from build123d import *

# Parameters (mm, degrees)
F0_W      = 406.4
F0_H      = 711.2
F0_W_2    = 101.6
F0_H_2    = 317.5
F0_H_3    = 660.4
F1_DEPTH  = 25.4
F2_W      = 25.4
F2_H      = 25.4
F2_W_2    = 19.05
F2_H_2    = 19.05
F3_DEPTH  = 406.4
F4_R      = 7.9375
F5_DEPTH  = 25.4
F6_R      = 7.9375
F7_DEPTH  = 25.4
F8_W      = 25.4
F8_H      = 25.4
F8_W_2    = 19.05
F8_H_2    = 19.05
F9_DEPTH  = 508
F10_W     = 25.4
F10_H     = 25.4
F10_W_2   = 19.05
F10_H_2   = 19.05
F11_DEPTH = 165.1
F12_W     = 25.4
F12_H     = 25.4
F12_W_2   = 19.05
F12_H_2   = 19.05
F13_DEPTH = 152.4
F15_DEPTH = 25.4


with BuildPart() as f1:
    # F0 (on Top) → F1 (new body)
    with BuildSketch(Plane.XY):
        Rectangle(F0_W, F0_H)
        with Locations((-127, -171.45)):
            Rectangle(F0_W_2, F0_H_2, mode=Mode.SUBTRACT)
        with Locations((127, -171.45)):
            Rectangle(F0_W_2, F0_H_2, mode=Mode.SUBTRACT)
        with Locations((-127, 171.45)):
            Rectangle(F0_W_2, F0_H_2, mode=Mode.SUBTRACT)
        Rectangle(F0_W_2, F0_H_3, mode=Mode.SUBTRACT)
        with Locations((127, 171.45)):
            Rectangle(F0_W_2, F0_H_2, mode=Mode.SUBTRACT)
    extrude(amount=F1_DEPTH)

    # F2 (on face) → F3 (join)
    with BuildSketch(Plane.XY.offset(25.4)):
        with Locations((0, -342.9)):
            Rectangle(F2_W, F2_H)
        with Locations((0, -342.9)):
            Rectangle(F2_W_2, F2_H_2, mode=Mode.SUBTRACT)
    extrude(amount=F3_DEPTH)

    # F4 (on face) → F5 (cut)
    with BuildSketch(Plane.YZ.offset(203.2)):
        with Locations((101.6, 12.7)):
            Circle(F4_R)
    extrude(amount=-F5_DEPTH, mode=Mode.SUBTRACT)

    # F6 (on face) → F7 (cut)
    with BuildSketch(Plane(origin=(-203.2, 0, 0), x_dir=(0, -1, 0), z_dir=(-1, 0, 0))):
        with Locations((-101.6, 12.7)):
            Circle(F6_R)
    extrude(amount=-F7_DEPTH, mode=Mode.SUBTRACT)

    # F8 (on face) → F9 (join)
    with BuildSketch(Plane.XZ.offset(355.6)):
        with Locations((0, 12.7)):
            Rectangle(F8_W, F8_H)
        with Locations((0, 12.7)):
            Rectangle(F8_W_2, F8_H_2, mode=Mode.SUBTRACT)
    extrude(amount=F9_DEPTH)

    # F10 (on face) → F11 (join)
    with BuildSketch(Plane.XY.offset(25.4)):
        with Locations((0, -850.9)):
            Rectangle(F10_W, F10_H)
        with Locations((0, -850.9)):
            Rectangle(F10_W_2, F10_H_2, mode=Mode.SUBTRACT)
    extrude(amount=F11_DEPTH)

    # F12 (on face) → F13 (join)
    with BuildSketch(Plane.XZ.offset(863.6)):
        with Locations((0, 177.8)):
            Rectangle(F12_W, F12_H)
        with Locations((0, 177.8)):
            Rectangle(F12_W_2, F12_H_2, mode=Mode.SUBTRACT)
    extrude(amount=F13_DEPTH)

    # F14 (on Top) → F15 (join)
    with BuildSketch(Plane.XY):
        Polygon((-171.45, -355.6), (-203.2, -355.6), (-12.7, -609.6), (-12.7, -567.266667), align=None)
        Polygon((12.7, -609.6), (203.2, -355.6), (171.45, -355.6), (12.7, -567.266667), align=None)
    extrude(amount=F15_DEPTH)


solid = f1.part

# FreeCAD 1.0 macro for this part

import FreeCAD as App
import Part
import Sketcher
from FreeCAD import Vector
Q = App.Units.Quantity

doc = App.newDocument("Part")
body = doc.addObject("PartDesign::Body", "Body")

# Sketch on XY plane
sketch1 = doc.addObject("Sketcher::SketchObject", "Sketch")
body.addObject(sketch1)
sketch1.AttachmentSupport = (doc.XY_Plane, [""])
sketch1.MapMode = "FlatFace"
sketch1.addGeometry([
    Part.LineSegment(Vector(-203, 356, 0), Vector(-203, -356, 0)),  # 0
    Part.LineSegment(Vector(-203, -356, 0), Vector(203, -356, 0)),  # 1
    Part.LineSegment(Vector(203, -356, 0), Vector(203, 356, 0)),  # 2
    Part.LineSegment(Vector(203, 356, 0), Vector(-203, 356, 0)),  # 3
    Part.LineSegment(Vector(-76, -330, 0), Vector(-178, -330, 0)),  # 4
    Part.LineSegment(Vector(-178, -330, 0), Vector(-178, -13, 0)),  # 5
    Part.LineSegment(Vector(-178, -13, 0), Vector(-76, -13, 0)),  # 6
    Part.LineSegment(Vector(-76, -13, 0), Vector(-76, -330, 0)),  # 7
    Part.LineSegment(Vector(178, -330, 0), Vector(76, -330, 0)),  # 8
    Part.LineSegment(Vector(76, -330, 0), Vector(76, -13, 0)),  # 9
    Part.LineSegment(Vector(76, -13, 0), Vector(178, -13, 0)),  # 10
    Part.LineSegment(Vector(178, -13, 0), Vector(178, -330, 0)),  # 11
    Part.LineSegment(Vector(-76, 13, 0), Vector(-178, 13, 0)),  # 12
    Part.LineSegment(Vector(-178, 13, 0), Vector(-178, 330, 0)),  # 13
    Part.LineSegment(Vector(-178, 330, 0), Vector(-76, 330, 0)),  # 14
    Part.LineSegment(Vector(-76, 330, 0), Vector(-76, 13, 0)),  # 15
    Part.LineSegment(Vector(51, -330, 0), Vector(-51, -330, 0)),  # 16
    Part.LineSegment(Vector(-51, -330, 0), Vector(-51, 330, 0)),  # 17
    Part.LineSegment(Vector(-51, 330, 0), Vector(51, 330, 0)),  # 18
    Part.LineSegment(Vector(51, 330, 0), Vector(51, -330, 0)),  # 19
    Part.LineSegment(Vector(178, 13, 0), Vector(76, 13, 0)),  # 20
    Part.LineSegment(Vector(76, 13, 0), Vector(76, 330, 0)),  # 21
    Part.LineSegment(Vector(76, 330, 0), Vector(178, 330, 0)),  # 22
    Part.LineSegment(Vector(178, 330, 0), Vector(178, 13, 0)),  # 23
], False)
sketch1.addConstraint([
    Sketcher.Constraint("Coincident", 0, 2, 1, 1),
    Sketcher.Constraint("Coincident", 1, 2, 2, 1),
    Sketcher.Constraint("Coincident", 2, 2, 3, 1),
    Sketcher.Constraint("Coincident", 3, 2, 0, 1),
    Sketcher.Constraint("Coincident", 4, 2, 5, 1),
    Sketcher.Constraint("Coincident", 5, 2, 6, 1),
    Sketcher.Constraint("Coincident", 6, 2, 7, 1),
    Sketcher.Constraint("Coincident", 7, 2, 4, 1),
    Sketcher.Constraint("Coincident", 8, 2, 9, 1),
    Sketcher.Constraint("Coincident", 9, 2, 10, 1),
    Sketcher.Constraint("Coincident", 10, 2, 11, 1),
    Sketcher.Constraint("Coincident", 11, 2, 8, 1),
    Sketcher.Constraint("Coincident", 12, 2, 13, 1),
    Sketcher.Constraint("Coincident", 13, 2, 14, 1),
    Sketcher.Constraint("Coincident", 14, 2, 15, 1),
    Sketcher.Constraint("Coincident", 15, 2, 12, 1),
    Sketcher.Constraint("Coincident", 16, 2, 17, 1),
    Sketcher.Constraint("Coincident", 17, 2, 18, 1),
    Sketcher.Constraint("Coincident", 18, 2, 19, 1),
    Sketcher.Constraint("Coincident", 19, 2, 16, 1),
    Sketcher.Constraint("Coincident", 20, 2, 21, 1),
    Sketcher.Constraint("Coincident", 21, 2, 22, 1),
    Sketcher.Constraint("Coincident", 22, 2, 23, 1),
    Sketcher.Constraint("Coincident", 23, 2, 20, 1),
    Sketcher.Constraint("Vertical", 0),
    Sketcher.Constraint("Horizontal", 1),
    Sketcher.Constraint("Vertical", 2),
    Sketcher.Constraint("Horizontal", 3),
    Sketcher.Constraint("Horizontal", 4),
    Sketcher.Constraint("Vertical", 5),
    Sketcher.Constraint("Horizontal", 6),
    Sketcher.Constraint("Vertical", 7),
    Sketcher.Constraint("Horizontal", 8),
    Sketcher.Constraint("Vertical", 9),
    Sketcher.Constraint("Horizontal", 10),
    Sketcher.Constraint("Vertical", 11),
    Sketcher.Constraint("Horizontal", 12),
    Sketcher.Constraint("Vertical", 13),
    Sketcher.Constraint("Horizontal", 14),
    Sketcher.Constraint("Vertical", 15),
    Sketcher.Constraint("Horizontal", 16),
    Sketcher.Constraint("Vertical", 17),
    Sketcher.Constraint("Horizontal", 18),
    Sketcher.Constraint("Vertical", 19),
    Sketcher.Constraint("Horizontal", 20),
    Sketcher.Constraint("Vertical", 21),
    Sketcher.Constraint("Horizontal", 22),
    Sketcher.Constraint("Vertical", 23),
    Sketcher.Constraint("Symmetric", 0, 2, 2, 2, -1, 1),
    Sketcher.Constraint("Symmetric", 10, 2, 12, 2, -1, 1),
    Sketcher.Constraint("Symmetric", 8, 2, 14, 2, -1, 1),
    Sketcher.Constraint("Symmetric", 16, 2, 18, 2, -1, 1),
    Sketcher.Constraint("Symmetric", 6, 2, 20, 2, -1, 1),
    Sketcher.Constraint("Symmetric", 4, 2, 22, 2, -1, 1),
    Sketcher.Constraint("Symmetric", 7, 2, 8, 2, -2),
    Sketcher.Constraint("Symmetric", 5, 2, 10, 2, -2),
    Sketcher.Constraint("Horizontal", 11, 2, 16, 2),
    Sketcher.Constraint("Equal", 14, 16),
    Sketcher.Constraint("DistanceX", 1, 1, 1, 2, Q("16 in")),
    Sketcher.Constraint("DistanceX", 4, 2, 4, 1, Q("4 in")),
    Sketcher.Constraint("DistanceY", 0, 2, 0, 1, Q("28 in")),
    Sketcher.Constraint("DistanceY", 17, 1, 17, 2, Q("26 in")),
    Sketcher.Constraint("DistanceY", 5, 1, 5, 2, Q("12.5 in")),
    Sketcher.Constraint("DistanceX", 4, 2, -1, 1, Q("7 in")),
])
pad1 = doc.addObject("PartDesign::Pad", "Pad")
body.addObject(pad1)
pad1.Profile = sketch1
pad1.Length = Q("1 in")

# Sketch on XY plane
sketch2 = doc.addObject("Sketcher::SketchObject", "Sketch001")
body.addObject(sketch2)
sketch2.AttachmentSupport = (doc.XY_Plane, [""])
sketch2.MapMode = "FlatFace"
sketch2.AttachmentOffset = App.Placement(Vector(0, 0, 1 * 25.4), App.Rotation())
sketch2.addGeometry([
    Part.LineSegment(Vector(-13, -330, 0), Vector(-13, -356, 0)),  # 0
    Part.LineSegment(Vector(-13, -356, 0), Vector(13, -356, 0)),  # 1
    Part.LineSegment(Vector(13, -356, 0), Vector(13, -330, 0)),  # 2
    Part.LineSegment(Vector(13, -330, 0), Vector(-13, -330, 0)),  # 3
    Part.LineSegment(Vector(10, -352, 0), Vector(-10, -352, 0)),  # 4
    Part.LineSegment(Vector(-10, -352, 0), Vector(-10, -333, 0)),  # 5
    Part.LineSegment(Vector(-10, -333, 0), Vector(10, -333, 0)),  # 6
    Part.LineSegment(Vector(10, -333, 0), Vector(10, -352, 0)),  # 7
], False)
sketch2.addConstraint([
    Sketcher.Constraint("Coincident", 0, 2, 1, 1),
    Sketcher.Constraint("Coincident", 1, 2, 2, 1),
    Sketcher.Constraint("Coincident", 2, 2, 3, 1),
    Sketcher.Constraint("Coincident", 3, 2, 0, 1),
    Sketcher.Constraint("Coincident", 4, 2, 5, 1),
    Sketcher.Constraint("Coincident", 5, 2, 6, 1),
    Sketcher.Constraint("Coincident", 6, 2, 7, 1),
    Sketcher.Constraint("Coincident", 7, 2, 4, 1),
    Sketcher.Constraint("Vertical", 0),
    Sketcher.Constraint("Horizontal", 1),
    Sketcher.Constraint("Vertical", 2),
    Sketcher.Constraint("Horizontal", 3),
    Sketcher.Constraint("Horizontal", 4),
    Sketcher.Constraint("Vertical", 5),
    Sketcher.Constraint("Horizontal", 6),
    Sketcher.Constraint("Vertical", 7),
    Sketcher.Constraint("Equal", 3, 0),
    Sketcher.Constraint("Equal", 6, 5),
    Sketcher.Constraint("DistanceX", 1, 1, 1, 2, Q("1 in")),
    Sketcher.Constraint("DistanceY", 0, 2, -1, 1, Q("14 in")),
    Sketcher.Constraint("DistanceX", 4, 2, 4, 1, Q("0.75 in")),
    Sketcher.Constraint("DistanceX", 0, 2, -1, 1, Q("0.5 in")),
    Sketcher.Constraint("DistanceX", 4, 2, -1, 1, Q("0.375 in")),
    Sketcher.Constraint("DistanceY", 4, 2, -1, 1, Q("13.875 in")),
])
pad2 = doc.addObject("PartDesign::Pad", "Pad001")
body.addObject(pad2)
pad2.Profile = sketch2
pad2.Length = Q("16 in")

# Sketch on YZ plane
sketch3 = doc.addObject("Sketcher::SketchObject", "Sketch002")
body.addObject(sketch3)
sketch3.AttachmentSupport = (doc.YZ_Plane, [""])
sketch3.MapMode = "FlatFace"
sketch3.AttachmentOffset = App.Placement(Vector(0, 0, 8 * 25.4), App.Rotation())
sketch3.addGeometry(Part.Circle(Vector(102, 13, 0), Vector(0, 0, 1), 8), False)
sketch3.addConstraint([
    Sketcher.Constraint("Diameter", 0, Q("0.625 in")),
    Sketcher.Constraint("DistanceX", -1, 1, 0, 3, Q("4 in")),
    Sketcher.Constraint("DistanceY", -1, 1, 0, 3, Q("0.5 in")),
])
pocket1 = doc.addObject("PartDesign::Pocket", "Pocket")
body.addObject(pocket1)
pocket1.Profile = sketch3
pocket1.Length = Q("1 in")

# Sketch on YZ plane
sketch4 = doc.addObject("Sketcher::SketchObject", "Sketch003")
body.addObject(sketch4)
sketch4.AttachmentSupport = (doc.YZ_Plane, [""])
sketch4.MapMode = "FlatFace"
sketch4.AttachmentOffset = App.Placement(Vector(0, 0, -8 * 25.4), App.Rotation())
sketch4.addGeometry(Part.Circle(Vector(102, 13, 0), Vector(0, 0, 1), 8), False)
sketch4.addConstraint([
    Sketcher.Constraint("Diameter", 0, Q("0.625 in")),
    Sketcher.Constraint("DistanceX", -1, 1, 0, 3, Q("4 in")),
    Sketcher.Constraint("DistanceY", -1, 1, 0, 3, Q("0.5 in")),
])
pocket2 = doc.addObject("PartDesign::Pocket", "Pocket001")
body.addObject(pocket2)
pocket2.Profile = sketch4
pocket2.Length = Q("1 in")
pocket2.Reversed = True

# Sketch on XZ plane
sketch5 = doc.addObject("Sketcher::SketchObject", "Sketch004")
body.addObject(sketch5)
sketch5.AttachmentSupport = (doc.XZ_Plane, [""])
sketch5.MapMode = "FlatFace"
sketch5.AttachmentOffset = App.Placement(Vector(0, 0, 14 * 25.4), App.Rotation())
sketch5.addGeometry([
    Part.LineSegment(Vector(-13, 25, 0), Vector(-13, 0, 0)),  # 0
    Part.LineSegment(Vector(-13, 0, 0), Vector(13, 0, 0)),  # 1
    Part.LineSegment(Vector(13, 0, 0), Vector(13, 25, 0)),  # 2
    Part.LineSegment(Vector(13, 25, 0), Vector(-13, 25, 0)),  # 3
    Part.LineSegment(Vector(10, 3, 0), Vector(-10, 3, 0)),  # 4
    Part.LineSegment(Vector(-10, 3, 0), Vector(-10, 22, 0)),  # 5
    Part.LineSegment(Vector(-10, 22, 0), Vector(10, 22, 0)),  # 6
    Part.LineSegment(Vector(10, 22, 0), Vector(10, 3, 0)),  # 7
], False)
sketch5.addConstraint([
    Sketcher.Constraint("Coincident", 0, 2, 1, 1),
    Sketcher.Constraint("Coincident", 1, 2, 2, 1),
    Sketcher.Constraint("Coincident", 2, 2, 3, 1),
    Sketcher.Constraint("Coincident", 3, 2, 0, 1),
    Sketcher.Constraint("Coincident", 4, 2, 5, 1),
    Sketcher.Constraint("Coincident", 5, 2, 6, 1),
    Sketcher.Constraint("Coincident", 6, 2, 7, 1),
    Sketcher.Constraint("Coincident", 7, 2, 4, 1),
    Sketcher.Constraint("Vertical", 0),
    Sketcher.Constraint("Horizontal", 1),
    Sketcher.Constraint("Vertical", 2),
    Sketcher.Constraint("Horizontal", 3),
    Sketcher.Constraint("Horizontal", 4),
    Sketcher.Constraint("Vertical", 5),
    Sketcher.Constraint("Horizontal", 6),
    Sketcher.Constraint("Vertical", 7),
    Sketcher.Constraint("Symmetric", 0, 2, 1, 2, -1, 1),
    Sketcher.Constraint("Equal", 3, 0),
    Sketcher.Constraint("Equal", 6, 5),
    Sketcher.Constraint("DistanceX", 1, 1, 1, 2, Q("1 in")),
    Sketcher.Constraint("DistanceX", 4, 2, 4, 1, Q("0.75 in")),
    Sketcher.Constraint("DistanceX", 4, 2, -1, 1, Q("0.375 in")),
    Sketcher.Constraint("DistanceY", -1, 1, 4, 2, Q("0.125 in")),
])
pad3 = doc.addObject("PartDesign::Pad", "Pad002")
body.addObject(pad3)
pad3.Profile = sketch5
pad3.Length = Q("20 in")

# Sketch on XY plane
sketch6 = doc.addObject("Sketcher::SketchObject", "Sketch005")
body.addObject(sketch6)
sketch6.AttachmentSupport = (doc.XY_Plane, [""])
sketch6.MapMode = "FlatFace"
sketch6.AttachmentOffset = App.Placement(Vector(0, 0, 1 * 25.4), App.Rotation())
sketch6.addGeometry([
    Part.LineSegment(Vector(-13, -838, 0), Vector(-13, -864, 0)),  # 0
    Part.LineSegment(Vector(-13, -864, 0), Vector(13, -864, 0)),  # 1
    Part.LineSegment(Vector(13, -864, 0), Vector(13, -838, 0)),  # 2
    Part.LineSegment(Vector(13, -838, 0), Vector(-13, -838, 0)),  # 3
    Part.LineSegment(Vector(10, -860, 0), Vector(-10, -860, 0)),  # 4
    Part.LineSegment(Vector(-10, -860, 0), Vector(-10, -841, 0)),  # 5
    Part.LineSegment(Vector(-10, -841, 0), Vector(10, -841, 0)),  # 6
    Part.LineSegment(Vector(10, -841, 0), Vector(10, -860, 0)),  # 7
], False)
sketch6.addConstraint([
    Sketcher.Constraint("Coincident", 0, 2, 1, 1),
    Sketcher.Constraint("Coincident", 1, 2, 2, 1),
    Sketcher.Constraint("Coincident", 2, 2, 3, 1),
    Sketcher.Constraint("Coincident", 3, 2, 0, 1),
    Sketcher.Constraint("Coincident", 4, 2, 5, 1),
    Sketcher.Constraint("Coincident", 5, 2, 6, 1),
    Sketcher.Constraint("Coincident", 6, 2, 7, 1),
    Sketcher.Constraint("Coincident", 7, 2, 4, 1),
    Sketcher.Constraint("Vertical", 0),
    Sketcher.Constraint("Horizontal", 1),
    Sketcher.Constraint("Vertical", 2),
    Sketcher.Constraint("Horizontal", 3),
    Sketcher.Constraint("Horizontal", 4),
    Sketcher.Constraint("Vertical", 5),
    Sketcher.Constraint("Horizontal", 6),
    Sketcher.Constraint("Vertical", 7),
    Sketcher.Constraint("Equal", 3, 0),
    Sketcher.Constraint("Equal", 6, 5),
    Sketcher.Constraint("DistanceX", 1, 1, 1, 2, Q("1 in")),
    Sketcher.Constraint("DistanceY", 0, 2, -1, 1, Q("34 in")),
    Sketcher.Constraint("DistanceX", 4, 2, 4, 1, Q("0.75 in")),
    Sketcher.Constraint("DistanceX", 0, 2, -1, 1, Q("0.5 in")),
    Sketcher.Constraint("DistanceX", 4, 2, -1, 1, Q("0.375 in")),
    Sketcher.Constraint("DistanceY", 4, 2, -1, 1, Q("33.875 in")),
])
pad4 = doc.addObject("PartDesign::Pad", "Pad003")
body.addObject(pad4)
pad4.Profile = sketch6
pad4.Length = Q("6.5 in")

# Sketch on XZ plane
sketch7 = doc.addObject("Sketcher::SketchObject", "Sketch006")
body.addObject(sketch7)
sketch7.AttachmentSupport = (doc.XZ_Plane, [""])
sketch7.MapMode = "FlatFace"
sketch7.AttachmentOffset = App.Placement(Vector(0, 0, 34 * 25.4), App.Rotation())
sketch7.addGeometry([
    Part.LineSegment(Vector(-13, 190, 0), Vector(-13, 165, 0)),  # 0
    Part.LineSegment(Vector(-13, 165, 0), Vector(13, 165, 0)),  # 1
    Part.LineSegment(Vector(13, 165, 0), Vector(13, 190, 0)),  # 2
    Part.LineSegment(Vector(13, 190, 0), Vector(-13, 190, 0)),  # 3
    Part.LineSegment(Vector(10, 168, 0), Vector(-10, 168, 0)),  # 4
    Part.LineSegment(Vector(-10, 168, 0), Vector(-10, 187, 0)),  # 5
    Part.LineSegment(Vector(-10, 187, 0), Vector(10, 187, 0)),  # 6
    Part.LineSegment(Vector(10, 187, 0), Vector(10, 168, 0)),  # 7
], False)
sketch7.addConstraint([
    Sketcher.Constraint("Coincident", 0, 2, 1, 1),
    Sketcher.Constraint("Coincident", 1, 2, 2, 1),
    Sketcher.Constraint("Coincident", 2, 2, 3, 1),
    Sketcher.Constraint("Coincident", 3, 2, 0, 1),
    Sketcher.Constraint("Coincident", 4, 2, 5, 1),
    Sketcher.Constraint("Coincident", 5, 2, 6, 1),
    Sketcher.Constraint("Coincident", 6, 2, 7, 1),
    Sketcher.Constraint("Coincident", 7, 2, 4, 1),
    Sketcher.Constraint("Vertical", 0),
    Sketcher.Constraint("Horizontal", 1),
    Sketcher.Constraint("Vertical", 2),
    Sketcher.Constraint("Horizontal", 3),
    Sketcher.Constraint("Horizontal", 4),
    Sketcher.Constraint("Vertical", 5),
    Sketcher.Constraint("Horizontal", 6),
    Sketcher.Constraint("Vertical", 7),
    Sketcher.Constraint("Equal", 3, 0),
    Sketcher.Constraint("Equal", 6, 5),
    Sketcher.Constraint("DistanceX", 1, 1, 1, 2, Q("1 in")),
    Sketcher.Constraint("DistanceX", 4, 2, 4, 1, Q("0.75 in")),
    Sketcher.Constraint("DistanceX", 0, 2, -1, 1, Q("0.5 in")),
    Sketcher.Constraint("DistanceY", -1, 1, 0, 2, Q("6.5 in")),
    Sketcher.Constraint("DistanceX", 4, 2, -1, 1, Q("0.375 in")),
    Sketcher.Constraint("DistanceY", -1, 1, 4, 2, Q("6.625 in")),
])
pad5 = doc.addObject("PartDesign::Pad", "Pad004")
body.addObject(pad5)
pad5.Profile = sketch7
pad5.Length = Q("6 in")

# Sketch on XY plane
sketch8 = doc.addObject("Sketcher::SketchObject", "Sketch007")
body.addObject(sketch8)
sketch8.AttachmentSupport = (doc.XY_Plane, [""])
sketch8.MapMode = "FlatFace"
sketch8.addGeometry([
    Part.LineSegment(Vector(-171, -356, 0), Vector(-203, -356, 0)),  # 0
    Part.LineSegment(Vector(-203, -356, 0), Vector(-13, -610, 0)),  # 1
    Part.LineSegment(Vector(-13, -610, 0), Vector(-13, -567, 0)),  # 2
    Part.LineSegment(Vector(-13, -567, 0), Vector(-171, -356, 0)),  # 3
    Part.LineSegment(Vector(13, -610, 0), Vector(203, -356, 0)),  # 4
    Part.LineSegment(Vector(203, -356, 0), Vector(171, -356, 0)),  # 5
    Part.LineSegment(Vector(171, -356, 0), Vector(13, -567, 0)),  # 6
    Part.LineSegment(Vector(13, -567, 0), Vector(13, -610, 0)),  # 7
], False)
sketch8.addConstraint([
    Sketcher.Constraint("Coincident", 0, 2, 1, 1),
    Sketcher.Constraint("Coincident", 1, 2, 2, 1),
    Sketcher.Constraint("Coincident", 2, 2, 3, 1),
    Sketcher.Constraint("Coincident", 3, 2, 0, 1),
    Sketcher.Constraint("Coincident", 4, 2, 5, 1),
    Sketcher.Constraint("Coincident", 5, 2, 6, 1),
    Sketcher.Constraint("Coincident", 6, 2, 7, 1),
    Sketcher.Constraint("Coincident", 7, 2, 4, 1),
    Sketcher.Constraint("Horizontal", 0),
    Sketcher.Constraint("Vertical", 2),
    Sketcher.Constraint("Horizontal", 5),
    Sketcher.Constraint("Vertical", 7),
    Sketcher.Constraint("Symmetric", 0, 2, 4, 2, -2),
    Sketcher.Constraint("Symmetric", 2, 2, 6, 2, -2),
    Sketcher.Constraint("Parallel", 1, 3),
    Sketcher.Constraint("Parallel", 4, 6),
    Sketcher.Constraint("Horizontal", 1, 2, 7, 2),
    Sketcher.Constraint("DistanceX", 0, 2, -1, 1, Q("8 in")),
    Sketcher.Constraint("DistanceY", 0, 2, -1, 1, Q("14 in")),
    Sketcher.Constraint("DistanceY", 1, 2, -1, 1, Q("24 in")),
    Sketcher.Constraint("DistanceX", 2, 2, 6, 2, Q("1 in")),
    Sketcher.Constraint("DistanceX", 0, 2, 0, 1, Q("1.25 in")),
])
pad6 = doc.addObject("PartDesign::Pad", "Pad005")
body.addObject(pad6)
pad6.Profile = sketch8
pad6.Length = Q("1 in")

doc.recompute()
